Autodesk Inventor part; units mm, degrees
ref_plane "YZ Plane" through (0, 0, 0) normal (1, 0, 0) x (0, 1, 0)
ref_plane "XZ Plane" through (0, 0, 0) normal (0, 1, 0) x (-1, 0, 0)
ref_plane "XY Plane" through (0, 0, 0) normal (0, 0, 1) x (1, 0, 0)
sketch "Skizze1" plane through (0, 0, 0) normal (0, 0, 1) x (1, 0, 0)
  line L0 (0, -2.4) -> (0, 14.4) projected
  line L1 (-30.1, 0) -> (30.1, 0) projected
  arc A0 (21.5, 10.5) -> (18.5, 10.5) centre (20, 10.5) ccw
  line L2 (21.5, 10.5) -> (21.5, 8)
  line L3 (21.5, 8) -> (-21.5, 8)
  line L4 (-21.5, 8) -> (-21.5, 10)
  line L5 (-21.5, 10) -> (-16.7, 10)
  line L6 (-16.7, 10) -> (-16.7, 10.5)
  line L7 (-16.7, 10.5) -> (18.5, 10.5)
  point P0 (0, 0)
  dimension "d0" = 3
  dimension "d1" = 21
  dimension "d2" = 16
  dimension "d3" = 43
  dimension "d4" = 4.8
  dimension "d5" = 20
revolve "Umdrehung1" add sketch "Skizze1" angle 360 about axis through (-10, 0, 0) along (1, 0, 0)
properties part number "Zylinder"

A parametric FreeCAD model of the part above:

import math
import FreeCAD as App
import Part
import Sketcher

V = App.Vector

doc = App.newDocument("Part")
body = doc.addObject("PartDesign::Body", "Body")

# Sketch on XY plane
sketch1 = body.newObject("Sketcher::SketchObject", "Sketch")
sketch1.AttachmentSupport = (doc.getObject("XY_Plane"), [""])
sketch1.MapMode = "FlatFace"
sketch1.addGeometry([
    Part.LineSegment(V(-21.5, 8, 0), V(21.5, 8, 0)),  # 0
    Part.LineSegment(V(21.5, 8, 0), V(21.5, 10.5, 0)),  # 1
    Part.ArcOfCircle(Part.Circle(V(20, 10.5, 0), V(0, 0, 1), 1.5), math.radians(0), math.radians(180)),  # 2
    Part.LineSegment(V(18.5, 10.5, 0), V(-16.7, 10.5, 0)),  # 3
    Part.LineSegment(V(-16.7, 10.5, 0), V(-16.7, 10, 0)),  # 4
    Part.LineSegment(V(-16.7, 10, 0), V(-21.5, 10, 0)),  # 5
    Part.LineSegment(V(-21.5, 10, 0), V(-21.5, 8, 0)),  # 6
], False)
sketch1.addConstraint([
    Sketcher.Constraint("Coincident", 0, 2, 1, 1),
    Sketcher.Constraint("Tangent", 1, 2, 2, 1),
    Sketcher.Constraint("Coincident", 2, 2, 3, 1),
    Sketcher.Constraint("Coincident", 3, 2, 4, 1),
    Sketcher.Constraint("Coincident", 4, 2, 5, 1),
    Sketcher.Constraint("Coincident", 5, 2, 6, 1),
    Sketcher.Constraint("Coincident", 6, 2, 0, 1),
    Sketcher.Constraint("Horizontal", 0),
    Sketcher.Constraint("Vertical", 1),
    Sketcher.Constraint("Horizontal", 3),
    Sketcher.Constraint("Vertical", 4),
    Sketcher.Constraint("Horizontal", 5),
    Sketcher.Constraint("Vertical", 6),
    Sketcher.Constraint("Horizontal", 1, 2, 2, 2),
    Sketcher.Constraint("Radius", 2, 1.5),
    Sketcher.Constraint("DistanceX", 0, 1, 0, 2, 43.0),
    Sketcher.Constraint("DistanceX", 5, 2, 5, 1, 4.8),
    Sketcher.Constraint("DistanceX", -1, 1, 2, 3, 20.0),
    Sketcher.Constraint("DistanceY", 6, 2, 6, 1, 2.0),
    Sketcher.Constraint("DistanceY", 1, 1, 1, 2, 2.5),
    Sketcher.Constraint("DistanceY", -1, 1, 0, 2, 8.0),
])
revolution = body.newObject("PartDesign::Revolution", "Revolution")
revolution.Profile = sketch1
revolution.ReferenceAxis = (sketch1, ["H_Axis"])
revolution.Angle = 360

doc.recompute()
